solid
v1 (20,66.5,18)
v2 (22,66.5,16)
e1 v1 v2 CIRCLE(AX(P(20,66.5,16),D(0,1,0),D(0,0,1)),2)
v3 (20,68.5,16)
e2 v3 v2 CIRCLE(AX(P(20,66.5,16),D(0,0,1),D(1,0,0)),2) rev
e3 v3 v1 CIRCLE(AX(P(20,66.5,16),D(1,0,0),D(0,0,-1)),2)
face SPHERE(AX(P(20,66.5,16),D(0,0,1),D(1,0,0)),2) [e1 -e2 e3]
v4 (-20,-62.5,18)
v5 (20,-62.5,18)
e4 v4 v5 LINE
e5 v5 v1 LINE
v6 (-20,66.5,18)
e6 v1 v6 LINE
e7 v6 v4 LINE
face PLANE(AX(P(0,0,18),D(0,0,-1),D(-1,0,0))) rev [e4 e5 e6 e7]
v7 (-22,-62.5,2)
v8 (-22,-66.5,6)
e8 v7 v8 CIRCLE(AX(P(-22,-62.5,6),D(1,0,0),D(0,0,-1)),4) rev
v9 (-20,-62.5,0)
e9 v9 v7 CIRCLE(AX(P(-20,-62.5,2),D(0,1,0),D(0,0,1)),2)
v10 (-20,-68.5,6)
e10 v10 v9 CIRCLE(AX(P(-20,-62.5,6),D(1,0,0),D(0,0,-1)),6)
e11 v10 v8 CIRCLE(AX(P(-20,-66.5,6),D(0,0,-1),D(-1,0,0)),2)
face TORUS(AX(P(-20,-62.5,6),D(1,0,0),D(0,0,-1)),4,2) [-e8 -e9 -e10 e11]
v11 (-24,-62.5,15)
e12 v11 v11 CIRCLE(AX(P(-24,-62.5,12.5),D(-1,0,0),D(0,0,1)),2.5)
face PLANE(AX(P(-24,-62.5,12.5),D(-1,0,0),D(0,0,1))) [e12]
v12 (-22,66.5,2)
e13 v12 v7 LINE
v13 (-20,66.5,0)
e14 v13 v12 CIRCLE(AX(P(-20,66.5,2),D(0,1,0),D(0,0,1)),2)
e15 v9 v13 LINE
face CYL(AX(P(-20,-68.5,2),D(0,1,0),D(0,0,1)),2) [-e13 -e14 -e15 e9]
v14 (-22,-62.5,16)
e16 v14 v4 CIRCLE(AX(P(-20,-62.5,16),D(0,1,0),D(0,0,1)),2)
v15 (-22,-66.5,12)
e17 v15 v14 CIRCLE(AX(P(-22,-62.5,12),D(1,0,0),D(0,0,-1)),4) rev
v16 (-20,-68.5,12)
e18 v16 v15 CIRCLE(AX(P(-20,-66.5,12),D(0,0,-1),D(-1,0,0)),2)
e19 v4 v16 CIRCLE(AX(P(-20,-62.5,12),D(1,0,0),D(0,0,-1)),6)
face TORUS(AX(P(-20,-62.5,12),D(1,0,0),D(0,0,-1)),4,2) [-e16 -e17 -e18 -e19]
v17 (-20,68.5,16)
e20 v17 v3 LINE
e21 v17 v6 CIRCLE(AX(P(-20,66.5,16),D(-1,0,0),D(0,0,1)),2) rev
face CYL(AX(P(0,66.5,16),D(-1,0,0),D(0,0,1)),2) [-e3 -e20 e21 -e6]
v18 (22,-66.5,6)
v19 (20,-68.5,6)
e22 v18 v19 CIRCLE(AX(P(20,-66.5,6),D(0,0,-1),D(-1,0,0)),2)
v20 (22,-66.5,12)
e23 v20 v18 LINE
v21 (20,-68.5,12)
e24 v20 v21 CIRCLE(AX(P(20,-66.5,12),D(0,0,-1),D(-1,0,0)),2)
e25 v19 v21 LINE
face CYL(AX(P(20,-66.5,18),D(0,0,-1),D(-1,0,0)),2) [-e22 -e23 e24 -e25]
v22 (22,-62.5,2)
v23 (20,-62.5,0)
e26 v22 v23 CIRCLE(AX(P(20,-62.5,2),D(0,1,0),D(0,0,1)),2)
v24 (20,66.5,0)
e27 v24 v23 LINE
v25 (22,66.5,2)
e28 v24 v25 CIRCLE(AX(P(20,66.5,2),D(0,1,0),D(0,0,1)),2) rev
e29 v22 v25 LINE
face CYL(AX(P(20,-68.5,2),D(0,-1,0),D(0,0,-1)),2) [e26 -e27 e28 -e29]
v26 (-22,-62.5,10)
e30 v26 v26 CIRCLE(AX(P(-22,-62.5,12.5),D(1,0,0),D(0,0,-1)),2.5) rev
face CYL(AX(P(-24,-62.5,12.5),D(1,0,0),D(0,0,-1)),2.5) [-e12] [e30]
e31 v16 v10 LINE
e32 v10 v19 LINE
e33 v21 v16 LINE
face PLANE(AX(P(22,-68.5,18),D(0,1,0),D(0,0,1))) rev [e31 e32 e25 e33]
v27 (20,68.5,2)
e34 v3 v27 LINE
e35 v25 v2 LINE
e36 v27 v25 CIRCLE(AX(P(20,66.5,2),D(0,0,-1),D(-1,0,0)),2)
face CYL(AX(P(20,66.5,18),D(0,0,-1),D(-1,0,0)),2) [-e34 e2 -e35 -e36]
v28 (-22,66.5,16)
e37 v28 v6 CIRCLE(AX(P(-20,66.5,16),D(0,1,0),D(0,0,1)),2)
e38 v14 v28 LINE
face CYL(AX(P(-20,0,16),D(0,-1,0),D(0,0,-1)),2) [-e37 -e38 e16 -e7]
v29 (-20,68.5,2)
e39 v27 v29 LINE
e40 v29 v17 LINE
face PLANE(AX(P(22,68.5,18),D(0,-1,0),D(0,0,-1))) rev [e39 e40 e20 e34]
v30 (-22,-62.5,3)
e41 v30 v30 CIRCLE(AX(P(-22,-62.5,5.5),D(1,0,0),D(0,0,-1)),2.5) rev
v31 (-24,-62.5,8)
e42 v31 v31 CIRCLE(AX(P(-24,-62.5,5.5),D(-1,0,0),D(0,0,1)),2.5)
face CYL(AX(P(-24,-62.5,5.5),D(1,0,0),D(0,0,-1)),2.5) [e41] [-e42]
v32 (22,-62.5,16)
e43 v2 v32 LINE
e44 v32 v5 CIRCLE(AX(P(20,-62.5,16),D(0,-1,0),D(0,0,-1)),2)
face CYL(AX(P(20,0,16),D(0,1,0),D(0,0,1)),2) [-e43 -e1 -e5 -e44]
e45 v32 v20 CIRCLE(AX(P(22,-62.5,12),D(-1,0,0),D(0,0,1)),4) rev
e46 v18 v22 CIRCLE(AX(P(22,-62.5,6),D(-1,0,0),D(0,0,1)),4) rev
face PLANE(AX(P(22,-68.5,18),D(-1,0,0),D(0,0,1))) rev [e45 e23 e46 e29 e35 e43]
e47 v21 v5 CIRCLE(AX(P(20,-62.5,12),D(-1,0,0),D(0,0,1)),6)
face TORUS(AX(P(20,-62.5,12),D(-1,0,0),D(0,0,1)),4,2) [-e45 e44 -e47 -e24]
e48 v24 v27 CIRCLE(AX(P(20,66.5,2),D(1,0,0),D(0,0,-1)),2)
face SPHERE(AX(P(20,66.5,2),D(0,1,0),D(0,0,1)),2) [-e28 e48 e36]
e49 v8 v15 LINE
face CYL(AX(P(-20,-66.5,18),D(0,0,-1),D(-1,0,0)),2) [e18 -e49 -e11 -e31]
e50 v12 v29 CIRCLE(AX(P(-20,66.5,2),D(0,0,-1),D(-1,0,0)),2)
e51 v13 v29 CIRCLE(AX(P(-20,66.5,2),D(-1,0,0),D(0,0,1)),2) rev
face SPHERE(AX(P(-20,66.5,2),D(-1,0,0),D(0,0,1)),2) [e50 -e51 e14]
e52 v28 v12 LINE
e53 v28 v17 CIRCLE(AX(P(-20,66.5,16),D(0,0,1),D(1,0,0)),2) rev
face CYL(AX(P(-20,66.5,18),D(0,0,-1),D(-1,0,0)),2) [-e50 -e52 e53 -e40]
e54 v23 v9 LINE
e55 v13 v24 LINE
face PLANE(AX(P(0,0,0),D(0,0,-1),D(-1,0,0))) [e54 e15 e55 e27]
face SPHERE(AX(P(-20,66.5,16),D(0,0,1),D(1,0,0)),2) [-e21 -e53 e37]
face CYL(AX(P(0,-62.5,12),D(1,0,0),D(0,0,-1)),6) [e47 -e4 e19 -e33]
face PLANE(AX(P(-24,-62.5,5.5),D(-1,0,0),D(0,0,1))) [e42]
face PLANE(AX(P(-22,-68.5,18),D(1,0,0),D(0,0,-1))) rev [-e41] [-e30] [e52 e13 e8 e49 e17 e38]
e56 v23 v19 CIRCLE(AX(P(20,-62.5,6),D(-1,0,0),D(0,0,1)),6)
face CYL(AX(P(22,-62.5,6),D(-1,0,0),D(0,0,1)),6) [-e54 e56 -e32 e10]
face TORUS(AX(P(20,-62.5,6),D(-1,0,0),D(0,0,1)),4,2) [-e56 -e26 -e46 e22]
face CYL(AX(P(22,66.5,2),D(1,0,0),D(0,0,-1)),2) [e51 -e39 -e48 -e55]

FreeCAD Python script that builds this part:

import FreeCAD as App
import Part
import Sketcher
from FreeCAD import Vector
Q = App.Units.Quantity


def edges_at(feature, points):
    """Names of the edges that pass closest to the given points."""
    edges = feature.Shape.Edges
    near = lambda p: min(range(len(edges)), key=lambda i: edges[i].distToShape(Part.Vertex(*p))[0])
    return sorted({f"Edge{near(p) + 1}" for p in points})

doc = App.newDocument("Part")
body = doc.addObject("PartDesign::Body", "Body")

sketch1 = doc.addObject("Sketcher::SketchObject", "Sketch")
body.addObject(sketch1)
sketch1.AttachmentSupport = (doc.XY_Plane, [""])
sketch1.MapMode = "FlatFace"
sketch1.addGeometry([
    Part.LineSegment(Vector(-22, -68, 0), Vector(22, -68, 0)),
    Part.LineSegment(Vector(22, -68, 0), Vector(22, 68, 0)),
    Part.LineSegment(Vector(22, 68, 0), Vector(-22, 68, 0)),
    Part.LineSegment(Vector(-22, 68, 0), Vector(-22, -68, 0)),
], False)
sketch1.addConstraint([
    Sketcher.Constraint("Coincident", 0, 2, 1, 1),
    Sketcher.Constraint("Coincident", 1, 2, 2, 1),
    Sketcher.Constraint("Coincident", 2, 2, 3, 1),
    Sketcher.Constraint("Coincident", 3, 2, 0, 1),
    Sketcher.Constraint("Horizontal", 0),
    Sketcher.Constraint("Vertical", 1),
    Sketcher.Constraint("Horizontal", 2),
    Sketcher.Constraint("Vertical", 3),
    Sketcher.Constraint("Symmetric", 0, 2, 2, 2, -1, 1),
    Sketcher.Constraint("DistanceX", 0, 1, 0, 2, Q("44 mm")),
    Sketcher.Constraint("DistanceY", 1, 1, 1, 2, Q("137 mm")),
])
pad1 = doc.addObject("PartDesign::Pad", "Pad")
body.addObject(pad1)
pad1.Profile = sketch1
pad1.Length = 18
doc.recompute()

fillet = doc.addObject("PartDesign::Fillet", "Fillet")
body.addObject(fillet)
fillet.Base = (pad1, edges_at(pad1, [(0, -68.5, 18), (0, -68.5, 0)]))
fillet.Radius = 6
doc.recompute()

fillet2 = doc.addObject("PartDesign::Fillet", "Fillet001")
body.addObject(fillet2)
fillet2.Base = (fillet, ["Edge1"])
fillet2.UseAllEdges = True
fillet2.Radius = 2

sketch2 = doc.addObject("Sketcher::SketchObject", "Sketch001")
body.addObject(sketch2)
sketch2.AttachmentSupport = (doc.YZ_Plane, [""])
sketch2.MapMode = "FlatFace"
sketch2.AttachmentOffset = App.Placement(Vector(0, 0, -22), App.Rotation())
sketch2.addGeometry([
    Part.Circle(Vector(-62.5, 12.5, 0), Vector(0, 0, 1), 2.5),
    Part.Circle(Vector(-62.5, 5.5, 0), Vector(0, 0, 1), 2.5),
], False)
sketch2.addConstraint([
    Sketcher.Constraint("Equal", 0, 1),
    Sketcher.Constraint("Vertical", 0, 3, 1, 3),
    Sketcher.Constraint("Diameter", 0, Q("5 mm")),
    Sketcher.Constraint("DistanceY", 1, 3, 0, 3, Q("7 mm")),
    Sketcher.Constraint("DistanceX", 0, 3, -1, 1, Q("62.5 mm")),
    Sketcher.Constraint("DistanceY", -1, 1, 0, 3, Q("12.5 mm")),
])
pad2 = doc.addObject("PartDesign::Pad", "Pad001")
body.addObject(pad2)
pad2.Profile = sketch2
pad2.Length = 2
pad2.Reversed = True

doc.recompute()
